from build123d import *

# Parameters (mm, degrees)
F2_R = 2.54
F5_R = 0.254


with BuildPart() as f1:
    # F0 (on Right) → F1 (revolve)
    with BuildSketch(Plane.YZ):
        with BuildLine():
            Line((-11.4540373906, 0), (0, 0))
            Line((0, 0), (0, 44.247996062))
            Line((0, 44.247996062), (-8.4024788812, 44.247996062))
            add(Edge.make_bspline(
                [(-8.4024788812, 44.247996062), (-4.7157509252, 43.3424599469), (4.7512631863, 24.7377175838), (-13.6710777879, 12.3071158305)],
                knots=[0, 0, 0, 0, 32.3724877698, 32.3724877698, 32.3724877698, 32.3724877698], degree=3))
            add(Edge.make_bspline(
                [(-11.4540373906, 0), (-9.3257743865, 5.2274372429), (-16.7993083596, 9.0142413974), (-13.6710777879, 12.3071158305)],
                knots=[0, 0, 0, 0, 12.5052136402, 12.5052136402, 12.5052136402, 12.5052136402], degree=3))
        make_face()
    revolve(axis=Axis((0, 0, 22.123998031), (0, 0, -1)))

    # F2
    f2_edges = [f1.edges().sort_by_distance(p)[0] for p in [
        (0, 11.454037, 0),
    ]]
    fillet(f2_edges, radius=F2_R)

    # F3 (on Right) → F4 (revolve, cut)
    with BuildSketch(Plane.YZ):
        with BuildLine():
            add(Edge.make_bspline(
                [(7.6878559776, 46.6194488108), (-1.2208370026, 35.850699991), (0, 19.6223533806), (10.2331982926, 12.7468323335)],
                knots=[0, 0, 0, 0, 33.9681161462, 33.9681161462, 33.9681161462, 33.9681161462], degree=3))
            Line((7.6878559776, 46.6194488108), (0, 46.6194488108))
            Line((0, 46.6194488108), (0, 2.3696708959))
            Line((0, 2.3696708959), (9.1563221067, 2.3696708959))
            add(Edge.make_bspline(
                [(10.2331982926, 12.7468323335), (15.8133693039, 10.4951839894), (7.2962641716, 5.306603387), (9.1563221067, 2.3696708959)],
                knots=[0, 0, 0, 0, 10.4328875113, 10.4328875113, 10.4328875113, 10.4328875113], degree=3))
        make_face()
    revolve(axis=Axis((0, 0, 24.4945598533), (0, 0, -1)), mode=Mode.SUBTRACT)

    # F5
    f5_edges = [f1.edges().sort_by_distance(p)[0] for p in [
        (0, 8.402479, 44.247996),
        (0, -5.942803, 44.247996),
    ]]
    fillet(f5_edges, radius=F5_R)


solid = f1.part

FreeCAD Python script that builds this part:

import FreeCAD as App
import Part
import Sketcher
from FreeCAD import Vector
Q = App.Units.Quantity


def edges_at(feature, points):
    """Names of the edges that pass closest to the given points."""
    edges = feature.Shape.Edges
    near = lambda p: min(range(len(edges)), key=lambda i: edges[i].distToShape(Part.Vertex(*p))[0])
    return sorted({f"Edge{near(p) + 1}" for p in points})

doc = App.newDocument("Part")
body = doc.addObject("PartDesign::Body", "Body")

sketch1 = doc.addObject("Sketcher::SketchObject", "Sketch")
body.addObject(sketch1)
sketch1.AttachmentSupport = (doc.YZ_Plane, [""])
sketch1.MapMode = "FlatFace"
sketch1.addGeometry(Part.LineSegment(Vector(-11.454037, 0, 0), Vector(0, 0, 0)), False)
sketch1.addGeometry(Part.LineSegment(Vector(0, 0, 0), Vector(0, 44.247996, 0)), False)
sketch1.addGeometry(Part.LineSegment(Vector(0, 44.247996, 0), Vector(-8.402479, 44.247996, 0)), False)
sketch1.addGeometry(Part.BSplineCurve([Vector(-8.402479, 44.247996, 0), Vector(-4.715751, 43.34246, 0), Vector(4.751263, 24.737718, 0), Vector(-13.671078, 12.307116, 0)], [4, 4], [0, 32.37248777], False, 3, [1, 1, 1, 1], False), False)
sketch1.addGeometry(Part.BSplineCurve([Vector(-11.454037, 0, 0), Vector(-9.325774, 5.227437, 0), Vector(-16.799308, 9.014241, 0), Vector(-13.671078, 12.307116, 0)], [4, 4], [0, 12.50521364], False, 3, [1, 1, 1, 1], False), False)
sketch1.addConstraint(Sketcher.Constraint("Block", 3))
sketch1.addConstraint(Sketcher.Constraint("Block", 4))
sketch1.addConstraint(Sketcher.Constraint("Coincident", 0, 2, 1, 1))
sketch1.addConstraint(Sketcher.Constraint("Coincident", 1, 2, 2, 1))
sketch1.addConstraint(Sketcher.Constraint("Coincident", 2, 2, 3, 1))
sketch1.addConstraint(Sketcher.Constraint("Coincident", 4, 1, 0, 1))
sketch1.addConstraint(Sketcher.Constraint("Horizontal", 0))
sketch1.addConstraint(Sketcher.Constraint("Vertical", 1))
sketch1.addConstraint(Sketcher.Constraint("Horizontal", 2))
sketch1.addConstraint(Sketcher.Constraint("PointOnObject", 1, 2, -2))
revolution = doc.addObject("PartDesign::Revolution", "Revolution")
body.addObject(revolution)
revolution.Profile = sketch1
revolution.ReferenceAxis = (sketch1, ["V_Axis"])
revolution.Angle = 360
doc.recompute()

fillet = doc.addObject("PartDesign::Fillet", "Fillet")
body.addObject(fillet)
fillet.Base = (revolution, edges_at(revolution, [(0, 11.454, 0)]))
fillet.Radius = Q("0.1 in")

sketch2 = doc.addObject("Sketcher::SketchObject", "Sketch001")
body.addObject(sketch2)
sketch2.AttachmentSupport = (doc.YZ_Plane, [""])
sketch2.MapMode = "FlatFace"
sketch2.addGeometry(Part.BSplineCurve([Vector(7.687856, 46.619449, 0), Vector(-1.220837, 35.8507, 0), Vector(0, 19.622353, 0), Vector(10.233198, 12.746832, 0)], [4, 4], [0, 33.968116146], False, 3, [1, 1, 1, 1], False), False)
sketch2.addGeometry(Part.LineSegment(Vector(7.687856, 46.619449, 0), Vector(0, 46.619449, 0)), False)
sketch2.addGeometry(Part.LineSegment(Vector(0, 46.619449, 0), Vector(0, 2.369671, 0)), False)
sketch2.addGeometry(Part.LineSegment(Vector(0, 2.369671, 0), Vector(9.156322, 2.369671, 0)), False)
sketch2.addGeometry(Part.BSplineCurve([Vector(10.233198, 12.746832, 0), Vector(15.813369, 10.495184, 0), Vector(7.296264, 5.306603, 0), Vector(9.156322, 2.369671, 0)], [4, 4], [0, 10.432887511], False, 3, [1, 1, 1, 1], False), False)
sketch2.addConstraint(Sketcher.Constraint("Block", 0))
sketch2.addConstraint(Sketcher.Constraint("Block", 4))
sketch2.addConstraint(Sketcher.Constraint("Coincident", 0, 1, 1, 1))
sketch2.addConstraint(Sketcher.Constraint("Coincident", 1, 2, 2, 1))
sketch2.addConstraint(Sketcher.Constraint("Coincident", 2, 2, 3, 1))
sketch2.addConstraint(Sketcher.Constraint("Coincident", 3, 2, 4, 2))
sketch2.addConstraint(Sketcher.Constraint("Horizontal", 1))
sketch2.addConstraint(Sketcher.Constraint("Vertical", 2))
sketch2.addConstraint(Sketcher.Constraint("Horizontal", 3))
sketch2.addConstraint(Sketcher.Constraint("PointOnObject", 1, 2, -2))
groove = doc.addObject("PartDesign::Groove", "Groove")
body.addObject(groove)
groove.Profile = sketch2
groove.ReferenceAxis = (sketch2, ["V_Axis"])
groove.Angle = 360
doc.recompute()

fillet2 = doc.addObject("PartDesign::Fillet", "Fillet001")
body.addObject(fillet2)
fillet2.Base = (groove, edges_at(groove, [(0, 8.402, 44.248), (0, -5.943, 44.248)]))
fillet2.Radius = Q("0.01 in")

doc.recompute()
